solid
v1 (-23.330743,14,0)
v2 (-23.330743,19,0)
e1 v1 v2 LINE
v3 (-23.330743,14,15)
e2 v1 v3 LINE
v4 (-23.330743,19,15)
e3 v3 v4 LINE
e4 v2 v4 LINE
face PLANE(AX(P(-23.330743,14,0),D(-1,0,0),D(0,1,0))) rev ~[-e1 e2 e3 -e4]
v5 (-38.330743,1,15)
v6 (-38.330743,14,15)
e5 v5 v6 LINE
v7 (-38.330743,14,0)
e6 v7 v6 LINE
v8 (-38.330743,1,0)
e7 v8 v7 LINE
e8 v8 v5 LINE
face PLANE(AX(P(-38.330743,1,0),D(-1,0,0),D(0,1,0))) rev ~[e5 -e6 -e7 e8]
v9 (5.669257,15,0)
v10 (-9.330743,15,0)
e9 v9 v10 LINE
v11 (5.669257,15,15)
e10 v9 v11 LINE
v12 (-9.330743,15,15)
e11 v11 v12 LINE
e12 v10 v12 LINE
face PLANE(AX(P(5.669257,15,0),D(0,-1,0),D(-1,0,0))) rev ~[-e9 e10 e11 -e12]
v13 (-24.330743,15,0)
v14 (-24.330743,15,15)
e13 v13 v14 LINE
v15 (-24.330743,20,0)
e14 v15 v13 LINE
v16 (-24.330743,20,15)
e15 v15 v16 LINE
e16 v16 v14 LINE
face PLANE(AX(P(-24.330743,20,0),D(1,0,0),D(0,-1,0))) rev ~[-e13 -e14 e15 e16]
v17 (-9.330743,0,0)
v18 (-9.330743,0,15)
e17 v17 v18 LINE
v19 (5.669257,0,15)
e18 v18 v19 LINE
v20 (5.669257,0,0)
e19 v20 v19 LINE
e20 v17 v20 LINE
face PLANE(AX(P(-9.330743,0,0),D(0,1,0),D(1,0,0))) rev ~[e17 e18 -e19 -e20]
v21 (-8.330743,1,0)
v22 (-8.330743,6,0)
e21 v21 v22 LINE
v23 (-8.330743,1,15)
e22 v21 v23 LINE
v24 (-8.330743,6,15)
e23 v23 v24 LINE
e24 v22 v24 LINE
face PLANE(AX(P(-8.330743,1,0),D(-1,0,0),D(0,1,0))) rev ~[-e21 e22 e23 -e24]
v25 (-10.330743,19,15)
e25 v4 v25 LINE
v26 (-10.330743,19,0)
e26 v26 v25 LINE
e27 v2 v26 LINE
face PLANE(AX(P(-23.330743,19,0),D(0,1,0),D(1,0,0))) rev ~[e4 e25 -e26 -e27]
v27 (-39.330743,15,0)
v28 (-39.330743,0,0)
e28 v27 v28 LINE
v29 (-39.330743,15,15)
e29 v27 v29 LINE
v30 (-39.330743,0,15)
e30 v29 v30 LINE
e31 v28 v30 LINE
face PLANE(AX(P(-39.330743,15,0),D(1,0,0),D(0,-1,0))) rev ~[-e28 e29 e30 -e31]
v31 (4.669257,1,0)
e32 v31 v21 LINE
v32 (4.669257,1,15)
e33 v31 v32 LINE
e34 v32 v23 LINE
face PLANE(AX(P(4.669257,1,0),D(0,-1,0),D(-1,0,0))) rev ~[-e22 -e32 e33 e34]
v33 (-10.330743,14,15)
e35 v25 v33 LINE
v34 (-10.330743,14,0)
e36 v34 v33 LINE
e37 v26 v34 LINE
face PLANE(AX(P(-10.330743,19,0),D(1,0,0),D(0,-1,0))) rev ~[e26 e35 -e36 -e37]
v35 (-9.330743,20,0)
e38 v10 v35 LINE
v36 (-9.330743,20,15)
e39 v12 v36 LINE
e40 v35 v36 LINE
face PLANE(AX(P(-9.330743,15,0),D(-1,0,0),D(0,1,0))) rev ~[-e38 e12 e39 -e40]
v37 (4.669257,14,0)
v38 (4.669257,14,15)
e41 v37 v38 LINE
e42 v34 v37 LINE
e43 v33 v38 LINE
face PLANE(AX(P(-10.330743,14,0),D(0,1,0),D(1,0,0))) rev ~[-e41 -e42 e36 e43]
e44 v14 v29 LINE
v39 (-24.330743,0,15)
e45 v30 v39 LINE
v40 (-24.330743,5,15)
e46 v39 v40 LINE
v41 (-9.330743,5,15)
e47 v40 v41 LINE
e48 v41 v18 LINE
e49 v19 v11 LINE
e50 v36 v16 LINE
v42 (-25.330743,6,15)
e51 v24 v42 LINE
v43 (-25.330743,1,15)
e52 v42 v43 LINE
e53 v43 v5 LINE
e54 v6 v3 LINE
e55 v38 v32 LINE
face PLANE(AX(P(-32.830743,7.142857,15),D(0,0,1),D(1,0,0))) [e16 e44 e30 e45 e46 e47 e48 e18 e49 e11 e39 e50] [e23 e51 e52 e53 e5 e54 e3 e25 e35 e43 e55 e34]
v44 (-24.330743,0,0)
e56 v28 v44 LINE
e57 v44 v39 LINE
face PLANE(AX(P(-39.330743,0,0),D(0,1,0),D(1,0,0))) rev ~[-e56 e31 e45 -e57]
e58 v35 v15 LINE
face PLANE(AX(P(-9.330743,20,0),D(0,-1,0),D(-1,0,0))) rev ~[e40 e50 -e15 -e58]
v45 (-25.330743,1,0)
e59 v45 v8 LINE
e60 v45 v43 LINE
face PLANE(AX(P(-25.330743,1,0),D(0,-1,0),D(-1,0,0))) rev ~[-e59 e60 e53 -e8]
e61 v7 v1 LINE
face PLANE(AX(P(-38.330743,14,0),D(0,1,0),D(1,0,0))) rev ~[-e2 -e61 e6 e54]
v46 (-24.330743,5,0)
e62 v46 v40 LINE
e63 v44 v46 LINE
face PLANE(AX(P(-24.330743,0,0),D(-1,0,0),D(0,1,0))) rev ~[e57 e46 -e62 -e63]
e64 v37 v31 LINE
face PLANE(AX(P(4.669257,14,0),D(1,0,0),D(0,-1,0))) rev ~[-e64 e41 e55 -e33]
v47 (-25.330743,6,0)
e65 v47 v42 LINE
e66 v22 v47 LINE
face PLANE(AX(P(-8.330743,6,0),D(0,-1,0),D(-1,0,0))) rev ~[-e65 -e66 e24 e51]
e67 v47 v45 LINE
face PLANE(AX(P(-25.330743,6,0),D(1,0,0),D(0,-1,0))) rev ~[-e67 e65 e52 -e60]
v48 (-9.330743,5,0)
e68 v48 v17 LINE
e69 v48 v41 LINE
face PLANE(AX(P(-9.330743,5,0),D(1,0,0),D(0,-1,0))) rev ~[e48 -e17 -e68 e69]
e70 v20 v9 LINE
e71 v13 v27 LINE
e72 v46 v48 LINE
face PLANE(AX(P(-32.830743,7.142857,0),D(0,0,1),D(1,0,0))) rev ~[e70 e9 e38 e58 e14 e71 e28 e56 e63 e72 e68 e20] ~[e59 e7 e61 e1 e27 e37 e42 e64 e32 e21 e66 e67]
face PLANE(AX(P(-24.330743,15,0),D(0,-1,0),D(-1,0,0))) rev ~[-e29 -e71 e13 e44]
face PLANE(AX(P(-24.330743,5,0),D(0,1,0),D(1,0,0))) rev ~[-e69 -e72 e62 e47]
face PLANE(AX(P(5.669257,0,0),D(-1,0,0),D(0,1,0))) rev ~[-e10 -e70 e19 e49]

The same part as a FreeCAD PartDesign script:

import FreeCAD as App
import Part
import Sketcher
from FreeCAD import Vector
Q = App.Units.Quantity

doc = App.newDocument("Part")
body = doc.addObject("PartDesign::Body", "Body")

# Sketch on XY plane
sketch1 = body.newObject("Sketcher::SketchObject", "Sketch")
sketch1.AttachmentSupport = (doc.getObject("XY_Plane"), [""])
sketch1.MapMode = "FlatFace"
sketch1.addGeometry([
    Part.LineSegment(Vector(-39, 0, 0), Vector(-24, 0, 0)),  # 0
    Part.LineSegment(Vector(-24, 0, 0), Vector(-24, 5, 0)),  # 1
    Part.LineSegment(Vector(-24, 5, 0), Vector(-9, 5, 0)),  # 2
    Part.LineSegment(Vector(-9, 5, 0), Vector(-9, 0, 0)),  # 3
    Part.LineSegment(Vector(-9, 0, 0), Vector(6, 0, 0)),  # 4
    Part.LineSegment(Vector(6, 0, 0), Vector(6, 15, 0)),  # 5
    Part.LineSegment(Vector(6, 15, 0), Vector(-9, 15, 0)),  # 6
    Part.LineSegment(Vector(-9, 15, 0), Vector(-9, 20, 0)),  # 7
    Part.LineSegment(Vector(-9, 20, 0), Vector(-24, 20, 0)),  # 8
    Part.LineSegment(Vector(-24, 20, 0), Vector(-24, 15, 0)),  # 9
    Part.LineSegment(Vector(-24, 15, 0), Vector(-39, 15, 0)),  # 10
    Part.LineSegment(Vector(-39, 15, 0), Vector(-39, 0, 0)),  # 11
    Part.LineSegment(Vector(5, 14, 0), Vector(5, 1, 0)),  # 12
    Part.LineSegment(Vector(5, 1, 0), Vector(-8, 1, 0)),  # 13
    Part.LineSegment(Vector(-8, 1, 0), Vector(-8, 6, 0)),  # 14
    Part.LineSegment(Vector(-8, 6, 0), Vector(-25, 6, 0)),  # 15
    Part.LineSegment(Vector(-25, 6, 0), Vector(-25, 1, 0)),  # 16
    Part.LineSegment(Vector(-25, 1, 0), Vector(-38, 1, 0)),  # 17
    Part.LineSegment(Vector(-38, 1, 0), Vector(-38, 14, 0)),  # 18
    Part.LineSegment(Vector(-38, 14, 0), Vector(-23, 14, 0)),  # 19
    Part.LineSegment(Vector(-23, 14, 0), Vector(-23, 19, 0)),  # 20
    Part.LineSegment(Vector(-23, 19, 0), Vector(-10, 19, 0)),  # 21
    Part.LineSegment(Vector(-10, 19, 0), Vector(-10, 14, 0)),  # 22
    Part.LineSegment(Vector(-10, 14, 0), Vector(5, 14, 0)),  # 23
], False)
sketch1.addConstraint([
    Sketcher.Constraint("Coincident", 0, 2, 1, 1),
    Sketcher.Constraint("Coincident", 1, 2, 2, 1),
    Sketcher.Constraint("Coincident", 2, 2, 3, 1),
    Sketcher.Constraint("Coincident", 3, 2, 4, 1),
    Sketcher.Constraint("Coincident", 4, 2, 5, 1),
    Sketcher.Constraint("Coincident", 5, 2, 6, 1),
    Sketcher.Constraint("Coincident", 6, 2, 7, 1),
    Sketcher.Constraint("Coincident", 7, 2, 8, 1),
    Sketcher.Constraint("Coincident", 8, 2, 9, 1),
    Sketcher.Constraint("Coincident", 9, 2, 10, 1),
    Sketcher.Constraint("Coincident", 10, 2, 11, 1),
    Sketcher.Constraint("Coincident", 11, 2, 0, 1),
    Sketcher.Constraint("Coincident", 12, 2, 13, 1),
    Sketcher.Constraint("Coincident", 13, 2, 14, 1),
    Sketcher.Constraint("Coincident", 14, 2, 15, 1),
    Sketcher.Constraint("Coincident", 15, 2, 16, 1),
    Sketcher.Constraint("Coincident", 16, 2, 17, 1),
    Sketcher.Constraint("Coincident", 17, 2, 18, 1),
    Sketcher.Constraint("Coincident", 18, 2, 19, 1),
    Sketcher.Constraint("Coincident", 19, 2, 20, 1),
    Sketcher.Constraint("Coincident", 20, 2, 21, 1),
    Sketcher.Constraint("Coincident", 21, 2, 22, 1),
    Sketcher.Constraint("Coincident", 22, 2, 23, 1),
    Sketcher.Constraint("Coincident", 23, 2, 12, 1),
    Sketcher.Constraint("Horizontal", 0),
    Sketcher.Constraint("Vertical", 1),
    Sketcher.Constraint("Horizontal", 2),
    Sketcher.Constraint("Vertical", 3),
    Sketcher.Constraint("Horizontal", 4),
    Sketcher.Constraint("Vertical", 5),
    Sketcher.Constraint("Horizontal", 6),
    Sketcher.Constraint("Vertical", 7),
    Sketcher.Constraint("Horizontal", 8),
    Sketcher.Constraint("Vertical", 9),
    Sketcher.Constraint("Horizontal", 10),
    Sketcher.Constraint("Vertical", 11),
    Sketcher.Constraint("Vertical", 12),
    Sketcher.Constraint("Horizontal", 13),
    Sketcher.Constraint("Vertical", 14),
    Sketcher.Constraint("Horizontal", 15),
    Sketcher.Constraint("Vertical", 16),
    Sketcher.Constraint("Horizontal", 17),
    Sketcher.Constraint("Vertical", 18),
    Sketcher.Constraint("Horizontal", 19),
    Sketcher.Constraint("Vertical", 20),
    Sketcher.Constraint("Horizontal", 21),
    Sketcher.Constraint("Vertical", 22),
    Sketcher.Constraint("Horizontal", 23),
    Sketcher.Constraint("PointOnObject", 0, 2, -1),
    Sketcher.Constraint("PointOnObject", 3, 2, -1),
    Sketcher.Constraint("Horizontal", 6, 2, 9, 2),
    Sketcher.Constraint("Horizontal", 13, 2, 16, 2),
    Sketcher.Constraint("Horizontal", 19, 2, 22, 2),
    Sketcher.Constraint("Vertical", 3, 2, 6, 2),
    Sketcher.Constraint("Vertical", 1, 2, 8, 2),
    Sketcher.Constraint("Equal", 0, 2),
    Sketcher.Constraint("Equal", 2, 4),
    Sketcher.Constraint("Equal", 13, 17),
    Sketcher.Constraint("Equal", 10, 19),
    Sketcher.Constraint("Equal", 17, 21),
    Sketcher.Constraint("Equal", 19, 23),
    Sketcher.Constraint("Equal", 23, 5),
    Sketcher.Constraint("Equal", 3, 7),
    Sketcher.Constraint("Equal", 21, 12),
    Sketcher.Constraint("Equal", 9, 14),
    Sketcher.Constraint("Equal", 16, 20),
    Sketcher.Constraint("DistanceX", 0, 1, 0, 2, Q("15 mm")),
    Sketcher.Constraint("DistanceX", 13, 2, 13, 1, Q("13 mm")),
    Sketcher.Constraint("DistanceY", 1, 1, 1, 2, Q("5 mm")),
    Sketcher.Constraint("DistanceY", -1, 1, 12, 2, Q("1 mm")),
    Sketcher.Constraint("DistanceX", 12, 2, 4, 2, Q("1 mm")),
    Sketcher.Constraint("DistanceX", 0, 2, -1, 1, Q("24.330743 mm")),
])
pad1 = body.newObject("PartDesign::Pad", "Pad")
pad1.Profile = sketch1
pad1.Length = 15

doc.recompute()
